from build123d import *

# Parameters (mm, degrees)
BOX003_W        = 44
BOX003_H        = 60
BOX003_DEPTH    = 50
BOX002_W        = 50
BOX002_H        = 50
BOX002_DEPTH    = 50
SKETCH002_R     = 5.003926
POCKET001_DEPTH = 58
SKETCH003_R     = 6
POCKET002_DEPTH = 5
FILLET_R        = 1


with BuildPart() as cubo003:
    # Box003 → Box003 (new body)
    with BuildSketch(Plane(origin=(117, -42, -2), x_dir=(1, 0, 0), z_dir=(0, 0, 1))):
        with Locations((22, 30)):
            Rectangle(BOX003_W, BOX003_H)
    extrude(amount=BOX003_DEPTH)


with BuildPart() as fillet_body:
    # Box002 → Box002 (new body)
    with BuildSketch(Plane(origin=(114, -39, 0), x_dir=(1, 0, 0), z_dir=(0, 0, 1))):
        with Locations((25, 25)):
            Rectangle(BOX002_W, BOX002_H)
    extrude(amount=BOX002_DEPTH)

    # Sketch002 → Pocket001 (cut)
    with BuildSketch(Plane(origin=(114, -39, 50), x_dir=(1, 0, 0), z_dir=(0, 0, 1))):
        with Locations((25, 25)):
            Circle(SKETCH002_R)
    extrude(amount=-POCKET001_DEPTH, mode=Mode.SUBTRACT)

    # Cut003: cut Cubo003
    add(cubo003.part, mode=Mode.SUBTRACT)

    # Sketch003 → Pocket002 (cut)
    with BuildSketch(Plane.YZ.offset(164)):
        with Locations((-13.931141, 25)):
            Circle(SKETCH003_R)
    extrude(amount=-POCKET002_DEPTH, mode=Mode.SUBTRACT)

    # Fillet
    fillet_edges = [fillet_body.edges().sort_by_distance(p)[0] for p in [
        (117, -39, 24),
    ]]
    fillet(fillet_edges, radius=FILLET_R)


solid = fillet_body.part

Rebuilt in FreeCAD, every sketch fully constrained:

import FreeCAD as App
import Part
import Sketcher


def edges_at(feature, points):
    """Names of the edges that pass closest to the given points."""
    edges = feature.Shape.Edges
    near = lambda p: min(range(len(edges)), key=lambda i: edges[i].distToShape(Part.Vertex(*p))[0])
    return sorted({f"Edge{near(p) + 1}" for p in points})

doc = App.newDocument("Part")
body = doc.addObject("PartDesign::Body", "Body")

# Sketch on XY plane
sketch1 = body.newObject("Sketcher::SketchObject", "Sketch")
sketch1.AttachmentSupport = (doc.getObject("XY_Plane"), [""])
sketch1.MapMode = "FlatFace"
sketch1.AttachmentOffset = App.Placement(App.Vector(0, 0, -2), App.Rotation())
sketch1.addGeometry(Part.LineSegment(App.Vector(117, 18, 0), App.Vector(117, -42, 0)), False)
sketch1.addGeometry(Part.LineSegment(App.Vector(117, -42, 0), App.Vector(161, -42, 0)), False)
sketch1.addGeometry(Part.LineSegment(App.Vector(161, -42, 0), App.Vector(161, 18, 0)), False)
sketch1.addGeometry(Part.LineSegment(App.Vector(161, 18, 0), App.Vector(117, 18, 0)), False)
sketch1.addConstraint(Sketcher.Constraint("Coincident", 0, 2, 1, 1))
sketch1.addConstraint(Sketcher.Constraint("Coincident", 1, 2, 2, 1))
sketch1.addConstraint(Sketcher.Constraint("Coincident", 2, 2, 3, 1))
sketch1.addConstraint(Sketcher.Constraint("Coincident", 3, 2, 0, 1))
sketch1.addConstraint(Sketcher.Constraint("Vertical", 0))
sketch1.addConstraint(Sketcher.Constraint("Horizontal", 1))
sketch1.addConstraint(Sketcher.Constraint("Vertical", 2))
sketch1.addConstraint(Sketcher.Constraint("Horizontal", 3))
sketch1.addConstraint(Sketcher.Constraint("DistanceX", 1, 1, 1, 2, 44.0))
sketch1.addConstraint(Sketcher.Constraint("DistanceY", 0, 2, 0, 1, 60.0))
sketch1.addConstraint(Sketcher.Constraint("DistanceX", -1, 1, 0, 2, 117.0))
sketch1.addConstraint(Sketcher.Constraint("DistanceY", 0, 2, -1, 1, 42.0))
pad1 = body.newObject("PartDesign::Pad", "Pad")
pad1.Profile = sketch1
pad1.Length = 50
body2 = doc.addObject("PartDesign::Body", "Body001")

# Sketch on XY plane
sketch2 = body2.newObject("Sketcher::SketchObject", "Sketch001")
sketch2.AttachmentSupport = (doc.getObject("XY_Plane001"), [""])
sketch2.MapMode = "FlatFace"
sketch2.addGeometry(Part.LineSegment(App.Vector(114, 11, 0), App.Vector(114, -39, 0)), False)
sketch2.addGeometry(Part.LineSegment(App.Vector(114, -39, 0), App.Vector(164, -39, 0)), False)
sketch2.addGeometry(Part.LineSegment(App.Vector(164, -39, 0), App.Vector(164, 11, 0)), False)
sketch2.addGeometry(Part.LineSegment(App.Vector(164, 11, 0), App.Vector(114, 11, 0)), False)
sketch2.addConstraint(Sketcher.Constraint("Coincident", 0, 2, 1, 1))
sketch2.addConstraint(Sketcher.Constraint("Coincident", 1, 2, 2, 1))
sketch2.addConstraint(Sketcher.Constraint("Coincident", 2, 2, 3, 1))
sketch2.addConstraint(Sketcher.Constraint("Coincident", 3, 2, 0, 1))
sketch2.addConstraint(Sketcher.Constraint("Vertical", 0))
sketch2.addConstraint(Sketcher.Constraint("Horizontal", 1))
sketch2.addConstraint(Sketcher.Constraint("Vertical", 2))
sketch2.addConstraint(Sketcher.Constraint("Horizontal", 3))
sketch2.addConstraint(Sketcher.Constraint("Equal", 3, 0))
sketch2.addConstraint(Sketcher.Constraint("DistanceX", 1, 1, 1, 2, 50.0))
sketch2.addConstraint(Sketcher.Constraint("DistanceX", -1, 1, 0, 2, 114.0))
sketch2.addConstraint(Sketcher.Constraint("DistanceY", 0, 2, -1, 1, 39.0))
pad2 = body2.newObject("PartDesign::Pad", "Pad001")
pad2.Profile = sketch2
pad2.Length = 50

# Sketch on XY plane
sketch3 = body2.newObject("Sketcher::SketchObject", "Sketch002")
sketch3.AttachmentSupport = (doc.getObject("XY_Plane001"), [""])
sketch3.MapMode = "FlatFace"
sketch3.AttachmentOffset = App.Placement(App.Vector(0, 0, 50), App.Rotation())
sketch3.addGeometry(Part.Circle(App.Vector(139, -14, 0), App.Vector(0, 0, 1), 5.003926), False)
sketch3.addConstraint(Sketcher.Constraint("DistanceX", -1, 1, 0, 3, 139.0))
sketch3.addConstraint(Sketcher.Constraint("DistanceY", 0, 3, -1, 1, 14.0))
sketch3.addConstraint(Sketcher.Constraint("Diameter", 0, 10.007852))
pocket1 = body2.newObject("PartDesign::Pocket", "Pocket")
pocket1.Profile = sketch3
pocket1.Length = 58
doc.recompute()

boolean = body2.newObject("PartDesign::Boolean", "Boolean")
boolean.Type = "Cut"
boolean.addObjects([body])

# Sketch on YZ plane
sketch4 = body2.newObject("Sketcher::SketchObject", "Sketch003")
sketch4.AttachmentSupport = (doc.getObject("YZ_Plane001"), [""])
sketch4.MapMode = "FlatFace"
sketch4.AttachmentOffset = App.Placement(App.Vector(0, 0, 164), App.Rotation())
sketch4.addGeometry(Part.Circle(App.Vector(-13.931141, 25, 0), App.Vector(0, 0, 1), 6), False)
sketch4.addConstraint(Sketcher.Constraint("Diameter", 0, 12.0))
sketch4.addConstraint(Sketcher.Constraint("DistanceY", -1, 1, 0, 3, 25.0))
sketch4.addConstraint(Sketcher.Constraint("DistanceX", 0, 3, -1, 1, 13.931141))
pocket2 = body2.newObject("PartDesign::Pocket", "Pocket001")
pocket2.Profile = sketch4
pocket2.Length = 5
doc.recompute()

fillet = body2.newObject("PartDesign::Fillet", "Fillet")
fillet.Base = (pocket2, edges_at(pocket2, [(117, -39, 24)]))
fillet.Radius = 1

doc.recompute()
